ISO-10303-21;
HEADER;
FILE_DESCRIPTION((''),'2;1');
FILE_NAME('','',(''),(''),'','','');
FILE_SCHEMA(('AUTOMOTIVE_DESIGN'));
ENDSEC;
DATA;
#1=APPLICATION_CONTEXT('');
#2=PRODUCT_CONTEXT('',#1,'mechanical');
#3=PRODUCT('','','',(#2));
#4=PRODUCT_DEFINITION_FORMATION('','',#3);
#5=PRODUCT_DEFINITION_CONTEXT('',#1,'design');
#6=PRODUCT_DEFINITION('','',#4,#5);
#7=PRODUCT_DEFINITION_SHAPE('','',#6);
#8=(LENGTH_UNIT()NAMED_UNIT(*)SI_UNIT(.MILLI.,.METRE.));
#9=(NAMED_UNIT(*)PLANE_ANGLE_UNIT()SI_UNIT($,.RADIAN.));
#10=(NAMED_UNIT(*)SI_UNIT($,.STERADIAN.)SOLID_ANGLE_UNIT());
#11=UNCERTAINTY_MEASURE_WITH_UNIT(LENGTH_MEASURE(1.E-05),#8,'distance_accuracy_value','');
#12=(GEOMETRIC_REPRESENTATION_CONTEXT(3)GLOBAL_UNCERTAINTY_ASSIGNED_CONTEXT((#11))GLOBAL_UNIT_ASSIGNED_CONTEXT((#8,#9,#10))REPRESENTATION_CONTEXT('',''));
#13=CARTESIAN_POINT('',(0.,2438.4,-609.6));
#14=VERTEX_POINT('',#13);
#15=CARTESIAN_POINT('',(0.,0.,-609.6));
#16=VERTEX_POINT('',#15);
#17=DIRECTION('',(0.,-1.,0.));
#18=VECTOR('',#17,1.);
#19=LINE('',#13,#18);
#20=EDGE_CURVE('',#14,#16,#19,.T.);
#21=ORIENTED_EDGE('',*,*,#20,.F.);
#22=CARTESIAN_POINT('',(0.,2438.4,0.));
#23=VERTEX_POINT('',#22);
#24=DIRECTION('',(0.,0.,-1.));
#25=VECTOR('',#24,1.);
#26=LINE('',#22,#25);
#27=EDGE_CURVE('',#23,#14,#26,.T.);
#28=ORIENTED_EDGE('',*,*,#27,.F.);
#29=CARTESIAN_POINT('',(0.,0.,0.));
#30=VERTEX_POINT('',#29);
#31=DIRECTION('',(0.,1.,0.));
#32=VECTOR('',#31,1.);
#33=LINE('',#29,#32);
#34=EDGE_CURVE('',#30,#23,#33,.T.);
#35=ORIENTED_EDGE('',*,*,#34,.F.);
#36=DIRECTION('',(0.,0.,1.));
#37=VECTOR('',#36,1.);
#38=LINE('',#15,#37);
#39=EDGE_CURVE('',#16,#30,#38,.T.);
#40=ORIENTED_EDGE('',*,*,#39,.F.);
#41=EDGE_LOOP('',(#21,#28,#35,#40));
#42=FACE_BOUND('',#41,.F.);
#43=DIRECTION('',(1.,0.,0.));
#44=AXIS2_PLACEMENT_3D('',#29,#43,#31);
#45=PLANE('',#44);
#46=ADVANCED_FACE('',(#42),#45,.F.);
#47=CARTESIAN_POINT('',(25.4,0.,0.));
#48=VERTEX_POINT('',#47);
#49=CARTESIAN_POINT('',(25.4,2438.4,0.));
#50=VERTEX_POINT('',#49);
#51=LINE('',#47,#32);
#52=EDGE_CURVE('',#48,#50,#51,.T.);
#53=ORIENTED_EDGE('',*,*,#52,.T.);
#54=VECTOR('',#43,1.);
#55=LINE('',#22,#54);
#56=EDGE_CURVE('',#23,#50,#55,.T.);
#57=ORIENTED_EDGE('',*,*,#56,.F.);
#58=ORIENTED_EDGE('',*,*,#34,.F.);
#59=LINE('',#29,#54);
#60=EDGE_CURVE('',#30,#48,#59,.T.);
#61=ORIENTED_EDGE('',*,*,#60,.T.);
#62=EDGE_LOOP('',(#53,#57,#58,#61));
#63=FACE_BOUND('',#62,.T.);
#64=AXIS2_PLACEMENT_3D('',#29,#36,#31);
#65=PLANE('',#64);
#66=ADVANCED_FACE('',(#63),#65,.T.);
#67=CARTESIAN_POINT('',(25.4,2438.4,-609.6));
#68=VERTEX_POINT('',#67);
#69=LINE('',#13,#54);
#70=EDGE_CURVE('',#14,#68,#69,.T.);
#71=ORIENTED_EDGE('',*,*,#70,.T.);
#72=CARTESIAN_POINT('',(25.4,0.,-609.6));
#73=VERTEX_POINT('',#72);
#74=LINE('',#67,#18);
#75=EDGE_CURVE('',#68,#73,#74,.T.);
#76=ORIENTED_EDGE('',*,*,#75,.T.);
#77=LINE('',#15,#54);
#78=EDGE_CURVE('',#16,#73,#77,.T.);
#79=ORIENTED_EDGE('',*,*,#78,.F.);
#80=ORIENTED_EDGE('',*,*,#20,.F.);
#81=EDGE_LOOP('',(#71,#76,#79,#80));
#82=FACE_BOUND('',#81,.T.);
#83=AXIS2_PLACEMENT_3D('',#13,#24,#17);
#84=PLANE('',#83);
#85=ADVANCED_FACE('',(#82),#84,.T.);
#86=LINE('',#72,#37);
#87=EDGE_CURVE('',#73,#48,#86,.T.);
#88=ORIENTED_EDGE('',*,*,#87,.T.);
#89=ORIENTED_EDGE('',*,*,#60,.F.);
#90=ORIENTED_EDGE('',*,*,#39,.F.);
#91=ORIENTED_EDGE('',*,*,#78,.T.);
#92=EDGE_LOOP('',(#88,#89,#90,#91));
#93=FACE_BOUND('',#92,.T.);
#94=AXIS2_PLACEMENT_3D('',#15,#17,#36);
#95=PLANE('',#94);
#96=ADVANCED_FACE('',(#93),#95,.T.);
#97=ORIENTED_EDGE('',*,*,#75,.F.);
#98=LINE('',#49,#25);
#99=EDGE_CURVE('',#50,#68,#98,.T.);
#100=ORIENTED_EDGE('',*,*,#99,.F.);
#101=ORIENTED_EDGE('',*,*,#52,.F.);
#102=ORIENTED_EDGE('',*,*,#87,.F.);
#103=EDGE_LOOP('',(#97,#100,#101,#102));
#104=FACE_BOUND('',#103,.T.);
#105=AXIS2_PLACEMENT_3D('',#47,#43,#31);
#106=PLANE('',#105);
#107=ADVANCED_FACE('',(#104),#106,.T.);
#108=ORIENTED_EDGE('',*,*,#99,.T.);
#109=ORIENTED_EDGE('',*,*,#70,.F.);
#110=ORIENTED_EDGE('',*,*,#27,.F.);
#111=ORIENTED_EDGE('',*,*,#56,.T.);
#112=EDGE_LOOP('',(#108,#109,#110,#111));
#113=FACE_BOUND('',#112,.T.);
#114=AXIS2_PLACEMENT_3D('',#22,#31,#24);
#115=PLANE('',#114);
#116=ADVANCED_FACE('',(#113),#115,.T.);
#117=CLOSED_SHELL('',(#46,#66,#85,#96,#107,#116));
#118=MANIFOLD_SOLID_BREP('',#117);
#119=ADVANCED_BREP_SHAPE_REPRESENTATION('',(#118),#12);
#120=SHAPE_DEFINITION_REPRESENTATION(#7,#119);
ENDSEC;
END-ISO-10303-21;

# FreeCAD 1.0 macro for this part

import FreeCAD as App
import Part
import Sketcher
from FreeCAD import Vector
Q = App.Units.Quantity

doc = App.newDocument("Part")
body = doc.addObject("PartDesign::Body", "Body")

# Sketch on YZ plane
sketch1 = doc.addObject("Sketcher::SketchObject", "Sketch")
body.addObject(sketch1)
sketch1.AttachmentSupport = (doc.YZ_Plane, [""])
sketch1.MapMode = "FlatFace"
sketch1.addGeometry([
    Part.LineSegment(Vector(2438, 0, 0), Vector(0, 0, 0)),
    Part.LineSegment(Vector(0, 0, 0), Vector(0, -610, 0)),
    Part.LineSegment(Vector(0, -610, 0), Vector(2438, -610, 0)),
    Part.LineSegment(Vector(2438, -610, 0), Vector(2438, 0, 0)),
], False)
sketch1.addConstraint([
    Sketcher.Constraint("Coincident", 0, 2, 1, 1),
    Sketcher.Constraint("Coincident", 1, 2, 2, 1),
    Sketcher.Constraint("Coincident", 2, 2, 3, 1),
    Sketcher.Constraint("Coincident", 3, 2, 0, 1),
    Sketcher.Constraint("Horizontal", 0),
    Sketcher.Constraint("Vertical", 1),
    Sketcher.Constraint("Horizontal", 2),
    Sketcher.Constraint("Vertical", 3),
    Sketcher.Constraint("Coincident", 0, 2, -1, 1),
    Sketcher.Constraint("DistanceX", 0, 2, 0, 1, Q("96 in")),
    Sketcher.Constraint("DistanceY", 1, 2, 1, 1, Q("24 in")),
])
pad1 = doc.addObject("PartDesign::Pad", "Pad")
body.addObject(pad1)
pad1.Profile = sketch1
pad1.Length = Q("1 in")

doc.recompute()
